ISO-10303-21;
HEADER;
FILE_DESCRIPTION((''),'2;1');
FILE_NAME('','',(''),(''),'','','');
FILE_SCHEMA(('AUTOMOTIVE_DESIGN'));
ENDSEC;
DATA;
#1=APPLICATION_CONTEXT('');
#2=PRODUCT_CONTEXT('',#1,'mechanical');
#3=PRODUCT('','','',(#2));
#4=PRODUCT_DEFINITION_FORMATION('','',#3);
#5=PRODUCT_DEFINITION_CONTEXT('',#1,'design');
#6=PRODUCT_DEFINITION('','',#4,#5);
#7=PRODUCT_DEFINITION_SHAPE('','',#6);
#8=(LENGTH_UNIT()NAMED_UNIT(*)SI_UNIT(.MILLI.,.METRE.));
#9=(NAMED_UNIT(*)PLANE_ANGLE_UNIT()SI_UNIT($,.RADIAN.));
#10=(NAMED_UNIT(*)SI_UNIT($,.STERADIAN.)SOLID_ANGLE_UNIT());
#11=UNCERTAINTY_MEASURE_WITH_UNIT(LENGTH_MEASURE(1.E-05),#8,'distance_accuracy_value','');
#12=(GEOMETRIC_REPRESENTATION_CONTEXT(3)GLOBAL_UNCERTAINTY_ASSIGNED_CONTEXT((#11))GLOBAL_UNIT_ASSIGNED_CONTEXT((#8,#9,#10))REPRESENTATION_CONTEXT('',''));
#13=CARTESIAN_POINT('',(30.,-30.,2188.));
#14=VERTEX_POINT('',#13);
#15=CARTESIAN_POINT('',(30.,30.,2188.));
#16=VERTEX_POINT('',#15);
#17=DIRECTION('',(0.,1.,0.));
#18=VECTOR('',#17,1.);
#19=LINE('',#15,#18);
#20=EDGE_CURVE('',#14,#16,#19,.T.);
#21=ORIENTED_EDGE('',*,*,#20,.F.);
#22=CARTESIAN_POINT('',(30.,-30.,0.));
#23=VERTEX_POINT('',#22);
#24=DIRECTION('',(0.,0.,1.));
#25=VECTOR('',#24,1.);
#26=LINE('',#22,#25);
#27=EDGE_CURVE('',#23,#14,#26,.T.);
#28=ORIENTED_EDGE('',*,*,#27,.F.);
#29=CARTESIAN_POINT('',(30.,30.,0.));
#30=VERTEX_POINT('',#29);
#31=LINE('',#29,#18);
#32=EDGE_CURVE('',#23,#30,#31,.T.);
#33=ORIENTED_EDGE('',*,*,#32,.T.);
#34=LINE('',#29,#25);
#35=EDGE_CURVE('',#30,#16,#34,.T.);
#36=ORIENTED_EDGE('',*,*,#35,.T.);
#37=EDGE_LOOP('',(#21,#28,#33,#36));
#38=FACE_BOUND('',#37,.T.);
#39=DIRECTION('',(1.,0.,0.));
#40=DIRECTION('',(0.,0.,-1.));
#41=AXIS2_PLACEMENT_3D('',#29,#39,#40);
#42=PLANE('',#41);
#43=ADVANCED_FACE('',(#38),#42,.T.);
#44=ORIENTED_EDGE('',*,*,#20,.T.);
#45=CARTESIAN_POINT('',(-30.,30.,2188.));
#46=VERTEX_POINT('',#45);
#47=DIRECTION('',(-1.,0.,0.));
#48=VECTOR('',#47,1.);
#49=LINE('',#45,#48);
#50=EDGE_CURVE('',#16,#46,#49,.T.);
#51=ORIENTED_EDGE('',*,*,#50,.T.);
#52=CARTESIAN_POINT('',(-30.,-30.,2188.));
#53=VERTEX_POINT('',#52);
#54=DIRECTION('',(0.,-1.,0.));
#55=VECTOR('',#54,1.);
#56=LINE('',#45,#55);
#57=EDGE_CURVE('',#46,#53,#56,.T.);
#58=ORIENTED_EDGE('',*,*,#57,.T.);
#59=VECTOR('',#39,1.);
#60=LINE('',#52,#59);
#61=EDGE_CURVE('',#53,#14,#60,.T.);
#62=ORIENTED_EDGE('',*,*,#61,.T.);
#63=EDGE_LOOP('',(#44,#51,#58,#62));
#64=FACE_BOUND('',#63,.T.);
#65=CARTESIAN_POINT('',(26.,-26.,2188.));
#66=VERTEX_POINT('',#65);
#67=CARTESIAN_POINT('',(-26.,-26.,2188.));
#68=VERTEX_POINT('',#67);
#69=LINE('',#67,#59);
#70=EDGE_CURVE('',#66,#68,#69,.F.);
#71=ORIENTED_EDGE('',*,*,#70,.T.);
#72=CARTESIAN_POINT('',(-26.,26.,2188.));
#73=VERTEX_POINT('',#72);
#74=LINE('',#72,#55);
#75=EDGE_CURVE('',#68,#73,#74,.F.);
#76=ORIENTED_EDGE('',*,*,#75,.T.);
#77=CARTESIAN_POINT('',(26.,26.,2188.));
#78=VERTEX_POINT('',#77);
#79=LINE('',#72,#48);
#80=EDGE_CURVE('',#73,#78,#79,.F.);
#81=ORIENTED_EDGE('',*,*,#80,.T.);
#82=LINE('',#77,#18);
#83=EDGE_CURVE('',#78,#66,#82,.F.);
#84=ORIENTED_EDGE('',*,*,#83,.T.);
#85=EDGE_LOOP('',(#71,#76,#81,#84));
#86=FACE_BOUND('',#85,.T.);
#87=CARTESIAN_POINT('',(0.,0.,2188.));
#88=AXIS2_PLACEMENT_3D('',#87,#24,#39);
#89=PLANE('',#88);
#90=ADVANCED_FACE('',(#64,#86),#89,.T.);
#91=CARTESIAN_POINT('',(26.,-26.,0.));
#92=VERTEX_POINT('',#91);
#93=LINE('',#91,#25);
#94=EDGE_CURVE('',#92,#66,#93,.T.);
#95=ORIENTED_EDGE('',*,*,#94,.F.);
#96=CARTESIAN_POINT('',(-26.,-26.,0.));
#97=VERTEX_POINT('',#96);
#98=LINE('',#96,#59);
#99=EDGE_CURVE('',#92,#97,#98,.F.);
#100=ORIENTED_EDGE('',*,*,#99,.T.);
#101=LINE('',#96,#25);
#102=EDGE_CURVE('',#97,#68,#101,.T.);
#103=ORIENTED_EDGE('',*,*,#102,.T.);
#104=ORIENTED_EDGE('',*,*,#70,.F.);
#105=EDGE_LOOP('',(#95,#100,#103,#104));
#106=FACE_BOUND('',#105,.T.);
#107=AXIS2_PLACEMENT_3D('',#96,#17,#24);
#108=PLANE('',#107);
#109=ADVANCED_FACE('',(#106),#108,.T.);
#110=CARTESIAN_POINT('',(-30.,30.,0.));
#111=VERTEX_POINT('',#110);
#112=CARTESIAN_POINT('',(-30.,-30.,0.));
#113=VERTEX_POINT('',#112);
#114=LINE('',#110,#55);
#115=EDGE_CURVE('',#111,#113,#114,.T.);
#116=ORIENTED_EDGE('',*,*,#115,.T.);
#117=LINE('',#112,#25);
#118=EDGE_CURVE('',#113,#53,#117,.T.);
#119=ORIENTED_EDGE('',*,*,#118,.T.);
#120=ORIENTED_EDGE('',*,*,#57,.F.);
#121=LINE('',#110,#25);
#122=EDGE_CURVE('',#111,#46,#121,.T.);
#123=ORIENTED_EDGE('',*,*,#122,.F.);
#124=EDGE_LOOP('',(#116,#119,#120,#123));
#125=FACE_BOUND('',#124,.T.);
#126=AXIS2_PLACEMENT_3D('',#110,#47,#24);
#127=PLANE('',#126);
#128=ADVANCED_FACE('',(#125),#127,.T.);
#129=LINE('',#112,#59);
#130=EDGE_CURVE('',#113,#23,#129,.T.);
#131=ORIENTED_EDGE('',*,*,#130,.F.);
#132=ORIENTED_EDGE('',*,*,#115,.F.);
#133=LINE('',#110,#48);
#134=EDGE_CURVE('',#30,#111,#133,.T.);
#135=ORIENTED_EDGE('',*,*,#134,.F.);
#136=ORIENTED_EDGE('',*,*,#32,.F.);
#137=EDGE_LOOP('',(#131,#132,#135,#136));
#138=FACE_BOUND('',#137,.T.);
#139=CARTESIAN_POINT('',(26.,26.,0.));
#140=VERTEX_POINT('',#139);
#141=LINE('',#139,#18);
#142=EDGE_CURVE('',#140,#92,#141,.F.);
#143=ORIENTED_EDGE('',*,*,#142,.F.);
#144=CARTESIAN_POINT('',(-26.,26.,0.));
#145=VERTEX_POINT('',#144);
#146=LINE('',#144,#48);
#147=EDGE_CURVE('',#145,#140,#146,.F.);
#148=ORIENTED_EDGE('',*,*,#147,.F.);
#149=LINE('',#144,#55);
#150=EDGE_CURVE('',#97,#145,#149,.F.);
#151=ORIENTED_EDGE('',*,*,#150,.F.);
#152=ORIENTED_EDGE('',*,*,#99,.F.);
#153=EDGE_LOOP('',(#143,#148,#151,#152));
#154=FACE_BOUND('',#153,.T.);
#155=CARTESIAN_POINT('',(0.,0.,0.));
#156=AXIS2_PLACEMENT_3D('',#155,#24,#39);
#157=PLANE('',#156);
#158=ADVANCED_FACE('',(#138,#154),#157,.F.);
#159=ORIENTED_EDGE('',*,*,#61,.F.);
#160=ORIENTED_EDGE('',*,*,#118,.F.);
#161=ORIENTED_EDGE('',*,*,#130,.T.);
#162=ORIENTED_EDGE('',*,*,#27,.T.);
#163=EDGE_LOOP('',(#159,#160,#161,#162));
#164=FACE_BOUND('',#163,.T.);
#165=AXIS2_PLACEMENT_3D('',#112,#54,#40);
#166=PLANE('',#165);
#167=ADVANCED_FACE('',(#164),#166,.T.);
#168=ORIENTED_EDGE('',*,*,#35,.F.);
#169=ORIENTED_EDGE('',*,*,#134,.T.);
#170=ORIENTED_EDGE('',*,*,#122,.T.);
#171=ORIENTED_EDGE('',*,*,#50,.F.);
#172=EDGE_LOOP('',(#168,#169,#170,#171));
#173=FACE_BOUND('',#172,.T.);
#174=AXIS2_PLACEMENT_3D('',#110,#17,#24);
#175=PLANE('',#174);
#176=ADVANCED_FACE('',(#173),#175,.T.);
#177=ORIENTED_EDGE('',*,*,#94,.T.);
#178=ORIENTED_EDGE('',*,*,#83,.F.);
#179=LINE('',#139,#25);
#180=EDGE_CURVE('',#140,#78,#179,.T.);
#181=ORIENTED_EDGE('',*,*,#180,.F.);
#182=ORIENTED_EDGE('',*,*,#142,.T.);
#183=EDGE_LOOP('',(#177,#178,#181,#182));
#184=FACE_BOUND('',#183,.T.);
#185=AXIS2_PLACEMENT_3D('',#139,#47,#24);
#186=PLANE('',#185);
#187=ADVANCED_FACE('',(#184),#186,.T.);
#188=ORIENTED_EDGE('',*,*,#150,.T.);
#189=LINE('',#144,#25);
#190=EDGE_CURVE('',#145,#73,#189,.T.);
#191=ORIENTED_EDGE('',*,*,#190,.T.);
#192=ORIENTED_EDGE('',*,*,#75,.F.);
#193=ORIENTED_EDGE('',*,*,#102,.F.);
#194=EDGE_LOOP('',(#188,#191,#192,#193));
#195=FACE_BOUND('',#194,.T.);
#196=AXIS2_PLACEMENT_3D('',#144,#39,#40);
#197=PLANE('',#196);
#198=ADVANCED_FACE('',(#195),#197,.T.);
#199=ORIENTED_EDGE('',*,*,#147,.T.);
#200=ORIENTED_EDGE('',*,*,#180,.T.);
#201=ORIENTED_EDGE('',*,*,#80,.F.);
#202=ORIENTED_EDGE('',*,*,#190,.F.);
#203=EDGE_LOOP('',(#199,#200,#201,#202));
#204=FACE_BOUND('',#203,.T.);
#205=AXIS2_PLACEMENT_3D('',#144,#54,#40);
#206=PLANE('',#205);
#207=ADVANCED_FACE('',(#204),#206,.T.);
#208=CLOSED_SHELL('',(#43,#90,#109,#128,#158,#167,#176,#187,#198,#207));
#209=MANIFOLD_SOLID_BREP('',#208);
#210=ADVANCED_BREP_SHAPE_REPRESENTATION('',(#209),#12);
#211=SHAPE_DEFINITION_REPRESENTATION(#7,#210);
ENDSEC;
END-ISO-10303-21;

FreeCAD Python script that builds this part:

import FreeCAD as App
import Part
import Sketcher
Q = App.Units.Quantity


def add_polygon(sketch, points):
    """Adds a closed chain of lines whose ends are joined by coincident constraints."""
    first, n = sketch.GeometryCount, len(points)
    for a, b in zip(points, points[1:] + points[:1]):
        sketch.addGeometry(Part.LineSegment(App.Vector(*a, 0), App.Vector(*b, 0)), False)
    for i in range(n):
        sketch.addConstraint(Sketcher.Constraint("Coincident", first + i, 2, first + (i + 1) % n, 1))

doc = App.newDocument("Part")
params = doc.addObject("Spreadsheet::Sheet", "Params")
for row, (alias, value) in enumerate([
    ("sketch1_width", "60 mm"),
    ("sketch1_width2", "52 mm"),
], start=1):
    params.set(f"A{row}", alias)
    params.set(f"B{row}", "=" + value)
    params.setAlias(f"B{row}", alias)

body = doc.addObject("PartDesign::Body", "Body")

# Sketch on XY plane
sketch1 = doc.addObject("Sketcher::SketchObject", "Sketch")
body.addObject(sketch1)
sketch1.AttachmentSupport = (doc.XY_Plane, [""])
sketch1.MapMode = "FlatFace"
add_polygon(sketch1, [(-30, 30), (-30, -30), (30, -30), (30, 30)])  # lines 0-3
add_polygon(sketch1, [(26, -26), (-26, -26), (-26, 26), (26, 26)])  # lines 4-7
sketch1.addConstraint([
    Sketcher.Constraint("Vertical", 0),
    Sketcher.Constraint("Horizontal", 1),
    Sketcher.Constraint("Vertical", 2),
    Sketcher.Constraint("Horizontal", 3),
    Sketcher.Constraint("Horizontal", 4),
    Sketcher.Constraint("Vertical", 5),
    Sketcher.Constraint("Horizontal", 6),
    Sketcher.Constraint("Vertical", 7),
    Sketcher.Constraint("Symmetric", 0, 2, 2, 2, -1, 1),
    Sketcher.Constraint("Symmetric", 4, 2, 6, 2, -1, 1),
    Sketcher.Constraint("Equal", 3, 0),
    Sketcher.Constraint("Equal", 6, 5),
    Sketcher.Constraint("DistanceX", 1, 1, 1, 2, Q("60 mm")),
    Sketcher.Constraint("DistanceX", 4, 2, 4, 1, Q("52 mm")),
])
sketch1.setExpression("Constraints[20]", "Params.sketch1_width")
sketch1.setExpression("Constraints[21]", "Params.sketch1_width2")

# Sketch on XZ plane
sketch2 = doc.addObject("Sketcher::SketchObject", "Sketch001")
body.addObject(sketch2)
sketch2.AttachmentSupport = (doc.XZ_Plane, [""])
sketch2.MapMode = "FlatFace"
sketch2.addGeometry(Part.BSplineCurve([App.Vector(0, 0, 0), App.Vector(0, 2188, 0)], [2, 2], [0, 1], False, 1, [1, 1], False), False)
sketch2.addConstraint(Sketcher.Constraint("Block", 0))
doc.recompute()

additivepipe = doc.addObject("PartDesign::AdditivePipe", "AdditivePipe")
body.addObject(additivepipe)
additivepipe.Profile = sketch1
additivepipe.Spine = (sketch2, ["Edge1"])

doc.recompute()
